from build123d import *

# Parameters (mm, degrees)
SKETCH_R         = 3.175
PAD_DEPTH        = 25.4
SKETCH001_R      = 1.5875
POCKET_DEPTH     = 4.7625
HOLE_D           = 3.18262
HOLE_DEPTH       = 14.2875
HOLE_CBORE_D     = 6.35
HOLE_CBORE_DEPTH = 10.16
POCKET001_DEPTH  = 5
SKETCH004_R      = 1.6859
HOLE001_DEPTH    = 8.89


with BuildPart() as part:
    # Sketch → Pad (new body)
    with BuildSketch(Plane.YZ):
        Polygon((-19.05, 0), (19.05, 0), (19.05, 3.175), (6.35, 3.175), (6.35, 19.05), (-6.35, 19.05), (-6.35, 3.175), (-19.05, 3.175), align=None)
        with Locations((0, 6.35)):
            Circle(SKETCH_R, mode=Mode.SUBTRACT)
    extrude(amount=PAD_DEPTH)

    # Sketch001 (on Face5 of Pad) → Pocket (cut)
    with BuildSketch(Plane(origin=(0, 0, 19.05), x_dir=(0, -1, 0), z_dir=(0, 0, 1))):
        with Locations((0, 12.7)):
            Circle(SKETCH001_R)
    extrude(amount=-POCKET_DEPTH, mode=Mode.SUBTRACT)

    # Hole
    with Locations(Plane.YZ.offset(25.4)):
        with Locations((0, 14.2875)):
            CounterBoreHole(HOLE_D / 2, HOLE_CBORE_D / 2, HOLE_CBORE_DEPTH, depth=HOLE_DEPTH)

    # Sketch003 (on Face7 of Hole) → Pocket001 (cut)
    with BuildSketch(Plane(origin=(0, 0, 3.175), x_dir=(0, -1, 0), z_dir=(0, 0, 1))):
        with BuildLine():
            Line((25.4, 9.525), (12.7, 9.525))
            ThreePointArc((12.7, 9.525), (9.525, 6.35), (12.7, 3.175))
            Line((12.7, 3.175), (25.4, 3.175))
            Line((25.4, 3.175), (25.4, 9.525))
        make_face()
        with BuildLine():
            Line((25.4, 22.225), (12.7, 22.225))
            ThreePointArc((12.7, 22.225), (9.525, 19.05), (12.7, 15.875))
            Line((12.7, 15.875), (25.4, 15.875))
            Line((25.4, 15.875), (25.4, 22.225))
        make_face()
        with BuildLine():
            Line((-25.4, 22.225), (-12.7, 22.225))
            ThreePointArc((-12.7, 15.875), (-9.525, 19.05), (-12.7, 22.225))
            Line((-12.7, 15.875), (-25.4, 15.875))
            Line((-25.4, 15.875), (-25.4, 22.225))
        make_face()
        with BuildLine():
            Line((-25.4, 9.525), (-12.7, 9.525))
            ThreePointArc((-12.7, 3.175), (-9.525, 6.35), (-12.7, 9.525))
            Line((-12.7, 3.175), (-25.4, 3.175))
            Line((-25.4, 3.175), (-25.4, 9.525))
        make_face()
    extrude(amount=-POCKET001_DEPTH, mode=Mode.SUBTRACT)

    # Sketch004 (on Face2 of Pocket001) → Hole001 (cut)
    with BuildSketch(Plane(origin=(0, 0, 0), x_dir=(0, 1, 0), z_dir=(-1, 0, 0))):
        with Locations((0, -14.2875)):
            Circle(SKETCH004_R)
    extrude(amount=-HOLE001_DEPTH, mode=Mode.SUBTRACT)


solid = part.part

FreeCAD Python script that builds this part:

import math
import FreeCAD as App
import Part
import Sketcher
Q = App.Units.Quantity


def add_polygon(sketch, points):
    """Adds a closed chain of lines whose ends are joined by coincident constraints."""
    first, n = sketch.GeometryCount, len(points)
    for a, b in zip(points, points[1:] + points[:1]):
        sketch.addGeometry(Part.LineSegment(App.Vector(*a, 0), App.Vector(*b, 0)), False)
    for i in range(n):
        sketch.addConstraint(Sketcher.Constraint("Coincident", first + i, 2, first + (i + 1) % n, 1))

doc = App.newDocument("Part")
body = doc.addObject("PartDesign::Body", "Body")

# Sketch on YZ plane
sketch1 = body.newObject("Sketcher::SketchObject", "Sketch")
sketch1.AttachmentSupport = (doc.getObject("YZ_Plane"), [""])
sketch1.MapMode = "FlatFace"
add_polygon(sketch1, [(-19.1, 0), (19.1, 0), (19.1, 3.2), (6.3, 3.2), (6.3, 19.1), (-6.3, 19.1), (-6.3, 3.2), (-19.1, 3.2)])  # lines 0-7
sketch1.addGeometry(Part.Circle(App.Vector(0, 6.3, 0), App.Vector(0, 0, 1), 3.2), False)  # 8
sketch1.addConstraint([
    Sketcher.Constraint("Horizontal", 0),
    Sketcher.Constraint("Vertical", 1),
    Sketcher.Constraint("Horizontal", 2),
    Sketcher.Constraint("Vertical", 3),
    Sketcher.Constraint("Horizontal", 4),
    Sketcher.Constraint("Vertical", 5),
    Sketcher.Constraint("Horizontal", 6),
    Sketcher.Constraint("Vertical", 7),
    Sketcher.Constraint("Symmetric", 0, 2, 7, 2, -1, 1),
    Sketcher.Constraint("Symmetric", 2, 2, 5, 2, -2),
    Sketcher.Constraint("PointOnObject", 8, 3, -2),
    Sketcher.Constraint("Equal", 2, 4),
    Sketcher.Constraint("Diameter", 8, Q("0.25 in")),
    Sketcher.Constraint("DistanceX", 0, 1, 0, 2, Q("1.5 in")),
    Sketcher.Constraint("DistanceY", 8, 3, 3, 2, Q("0.5 in")),
    Sketcher.Constraint("DistanceY", 1, 1, 1, 2, Q("0.125 in")),
    Sketcher.Constraint("DistanceY", 3, 1, 3, 2, Q("0.625 in")),
])
pad1 = body.newObject("PartDesign::Pad", "Pad")
pad1.Profile = sketch1
pad1.Length = Q("1 in")

# Sketch on XY plane
sketch2 = body.newObject("Sketcher::SketchObject", "Sketch001")
sketch2.AttachmentSupport = (doc.getObject("XY_Plane"), [""])
sketch2.MapMode = "FlatFace"
sketch2.AttachmentOffset = App.Placement(App.Vector(0, 0, 0.75 * 25.4), App.Rotation())
sketch2.addGeometry(Part.Circle(App.Vector(12.7, 0, 0), App.Vector(0, 0, 1), 1.6), False)
sketch2.addConstraint([
    Sketcher.Constraint("PointOnObject", 0, 3, -1),
    Sketcher.Constraint("Diameter", 0, Q("0.125 in")),
    Sketcher.Constraint("DistanceX", -1, 1, 0, 3, Q("0.5 in")),
])
pocket1 = body.newObject("PartDesign::Pocket", "Pocket")
pocket1.Profile = sketch2
pocket1.Length = Q("0.1875 in")

# Sketch on YZ plane
sketch3 = body.newObject("Sketcher::SketchObject", "Sketch002")
sketch3.AttachmentSupport = (doc.getObject("YZ_Plane"), [""])
sketch3.MapMode = "FlatFace"
sketch3.AttachmentOffset = App.Placement(App.Vector(0, 0, 1 * 25.4), App.Rotation())
sketch3.addGeometry(Part.Circle(App.Vector(0, 14.3, 0), App.Vector(0, 0, 1), 1.6), False)
sketch3.addConstraint([
    Sketcher.Constraint("PointOnObject", 0, 3, -2),
    Sketcher.Constraint("Diameter", 0, Q("0.1253 in")),
    Sketcher.Constraint("DistanceY", -1, 1, 0, 3, Q("0.5625 in")),
])
doc.recompute()
hole = body.newObject("PartDesign::Hole", "Hole")
hole.Profile = sketch3
hole.ThreadType = "None"
hole.Diameter = Q("0.1253 in")
hole.DepthType = "Dimension"
hole.Depth = Q("0.5625 in")
hole.DrillPoint = "Flat"
hole.HoleCutType = "Counterbore"
hole.HoleCutDiameter = Q("0.25 in")
hole.HoleCutDepth = Q("0.4 in")

# Sketch on XY plane
sketch4 = body.newObject("Sketcher::SketchObject", "Sketch003")
sketch4.AttachmentSupport = (doc.getObject("XY_Plane"), [""])
sketch4.MapMode = "FlatFace"
sketch4.AttachmentOffset = App.Placement(App.Vector(0, 0, 0.125 * 25.4), App.Rotation())
sketch4.addGeometry([
    Part.LineSegment(App.Vector(9.5, -25.4, 0), App.Vector(9.5, -12.7, 0)),  # 0
    Part.ArcOfCircle(Part.Circle(App.Vector(6.3, -12.7, 0), App.Vector(0, 0, 1), 3.2), math.radians(0), math.radians(180)),  # 1
    Part.LineSegment(App.Vector(3.2, -12.7, 0), App.Vector(3.2, -25.4, 0)),  # 2
    Part.LineSegment(App.Vector(3.2, -25.4, 0), App.Vector(9.5, -25.4, 0)),  # 3
    Part.LineSegment(App.Vector(22.2, -25.4, 0), App.Vector(22.2, -12.7, 0)),  # 4
    Part.ArcOfCircle(Part.Circle(App.Vector(19.1, -12.7, 0), App.Vector(0, 0, 1), 3.2), math.radians(0), math.radians(180)),  # 5
    Part.LineSegment(App.Vector(15.9, -12.7, 0), App.Vector(15.9, -25.4, 0)),  # 6
    Part.LineSegment(App.Vector(15.9, -25.4, 0), App.Vector(22.2, -25.4, 0)),  # 7
    Part.LineSegment(App.Vector(22.2, 12.7, 0), App.Vector(22.2, 25.4, 0)),  # 8
    Part.LineSegment(App.Vector(22.2, 25.4, 0), App.Vector(15.9, 25.4, 0)),  # 9
    Part.LineSegment(App.Vector(15.9, 25.4, 0), App.Vector(15.9, 12.7, 0)),  # 10
    Part.ArcOfCircle(Part.Circle(App.Vector(19.1, 12.7, 0), App.Vector(0, 0, 1), 3.2), math.radians(180), math.radians(360)),  # 11
    Part.LineSegment(App.Vector(9.5, 12.7, 0), App.Vector(9.5, 25.4, 0)),  # 12
    Part.LineSegment(App.Vector(9.5, 25.4, 0), App.Vector(3.2, 25.4, 0)),  # 13
    Part.LineSegment(App.Vector(3.2, 25.4, 0), App.Vector(3.2, 12.7, 0)),  # 14
    Part.ArcOfCircle(Part.Circle(App.Vector(6.3, 12.7, 0), App.Vector(0, 0, 1), 3.2), math.radians(180), math.radians(360)),  # 15
], False)
sketch4.addConstraint([
    Sketcher.Constraint("Tangent", 0, 2, 1, 1),
    Sketcher.Constraint("Tangent", 1, 2, 2, 1),
    Sketcher.Constraint("Coincident", 2, 2, 3, 1),
    Sketcher.Constraint("Coincident", 3, 2, 0, 1),
    Sketcher.Constraint("Tangent", 4, 2, 5, 1),
    Sketcher.Constraint("Tangent", 5, 2, 6, 1),
    Sketcher.Constraint("Coincident", 6, 2, 7, 1),
    Sketcher.Constraint("Coincident", 7, 2, 4, 1),
    Sketcher.Constraint("Coincident", 8, 2, 9, 1),
    Sketcher.Constraint("Coincident", 9, 2, 10, 1),
    Sketcher.Constraint("Tangent", 10, 2, 11, 1),
    Sketcher.Constraint("Tangent", 11, 2, 8, 1),
    Sketcher.Constraint("Coincident", 12, 2, 13, 1),
    Sketcher.Constraint("Coincident", 13, 2, 14, 1),
    Sketcher.Constraint("Tangent", 14, 2, 15, 1),
    Sketcher.Constraint("Tangent", 15, 2, 12, 1),
    Sketcher.Constraint("Vertical", 0),
    Sketcher.Constraint("Vertical", 2),
    Sketcher.Constraint("Horizontal", 3),
    Sketcher.Constraint("Vertical", 4),
    Sketcher.Constraint("Vertical", 6),
    Sketcher.Constraint("Horizontal", 7),
    Sketcher.Constraint("Vertical", 8),
    Sketcher.Constraint("Horizontal", 9),
    Sketcher.Constraint("Vertical", 10),
    Sketcher.Constraint("Vertical", 12),
    Sketcher.Constraint("Horizontal", 13),
    Sketcher.Constraint("Vertical", 14),
    Sketcher.Constraint("Equal", 1, 5),
    Sketcher.Constraint("Equal", 5, 11),
    Sketcher.Constraint("Equal", 11, 15),
    Sketcher.Constraint("Symmetric", 5, 3, 11, 3, -1),
    Sketcher.Constraint("Symmetric", 1, 3, 15, 3, -1),
    Sketcher.Constraint("Horizontal", 1, 3, 5, 3),
    Sketcher.Constraint("Horizontal", 3, 2, 6, 2),
    Sketcher.Constraint("Horizontal", 9, 2, 12, 2),
    Sketcher.Constraint("Equal", 6, 8),
    Sketcher.Constraint("DistanceY", 0, 1, 0, 2, Q("0.5 in")),
    Sketcher.Constraint("DistanceY", 2, 2, -1, 1, Q("1 in")),
    Sketcher.Constraint("Radius", 1, Q("0.125 in")),
    Sketcher.Constraint("DistanceX", 1, 3, 5, 3, Q("0.5 in")),
    Sketcher.Constraint("DistanceX", -1, 1, 1, 3, Q("0.25 in")),
])
pocket2 = body.newObject("PartDesign::Pocket", "Pocket001")
pocket2.Profile = sketch4
pocket2.Length = 5

# Sketch on YZ plane
sketch5 = body.newObject("Sketcher::SketchObject", "Sketch004")
sketch5.AttachmentSupport = (doc.getObject("YZ_Plane"), [""])
sketch5.MapMode = "FlatFace"
sketch5.addGeometry(Part.Circle(App.Vector(0, 14.3, 0), App.Vector(0, 0, 1), 1.7), False)
sketch5.addConstraint([
    Sketcher.Constraint("PointOnObject", 0, 3, -2),
    Sketcher.Constraint("Diameter", 0, Q("3.3718 mm")),
    Sketcher.Constraint("DistanceY", -1, 1, 0, 3, Q("0.5625 in")),
])
pocket3 = body.newObject("PartDesign::Pocket", "Pocket002")
pocket3.Profile = sketch5
pocket3.Length = Q("0.35 in")
pocket3.Reversed = True

doc.recompute()
